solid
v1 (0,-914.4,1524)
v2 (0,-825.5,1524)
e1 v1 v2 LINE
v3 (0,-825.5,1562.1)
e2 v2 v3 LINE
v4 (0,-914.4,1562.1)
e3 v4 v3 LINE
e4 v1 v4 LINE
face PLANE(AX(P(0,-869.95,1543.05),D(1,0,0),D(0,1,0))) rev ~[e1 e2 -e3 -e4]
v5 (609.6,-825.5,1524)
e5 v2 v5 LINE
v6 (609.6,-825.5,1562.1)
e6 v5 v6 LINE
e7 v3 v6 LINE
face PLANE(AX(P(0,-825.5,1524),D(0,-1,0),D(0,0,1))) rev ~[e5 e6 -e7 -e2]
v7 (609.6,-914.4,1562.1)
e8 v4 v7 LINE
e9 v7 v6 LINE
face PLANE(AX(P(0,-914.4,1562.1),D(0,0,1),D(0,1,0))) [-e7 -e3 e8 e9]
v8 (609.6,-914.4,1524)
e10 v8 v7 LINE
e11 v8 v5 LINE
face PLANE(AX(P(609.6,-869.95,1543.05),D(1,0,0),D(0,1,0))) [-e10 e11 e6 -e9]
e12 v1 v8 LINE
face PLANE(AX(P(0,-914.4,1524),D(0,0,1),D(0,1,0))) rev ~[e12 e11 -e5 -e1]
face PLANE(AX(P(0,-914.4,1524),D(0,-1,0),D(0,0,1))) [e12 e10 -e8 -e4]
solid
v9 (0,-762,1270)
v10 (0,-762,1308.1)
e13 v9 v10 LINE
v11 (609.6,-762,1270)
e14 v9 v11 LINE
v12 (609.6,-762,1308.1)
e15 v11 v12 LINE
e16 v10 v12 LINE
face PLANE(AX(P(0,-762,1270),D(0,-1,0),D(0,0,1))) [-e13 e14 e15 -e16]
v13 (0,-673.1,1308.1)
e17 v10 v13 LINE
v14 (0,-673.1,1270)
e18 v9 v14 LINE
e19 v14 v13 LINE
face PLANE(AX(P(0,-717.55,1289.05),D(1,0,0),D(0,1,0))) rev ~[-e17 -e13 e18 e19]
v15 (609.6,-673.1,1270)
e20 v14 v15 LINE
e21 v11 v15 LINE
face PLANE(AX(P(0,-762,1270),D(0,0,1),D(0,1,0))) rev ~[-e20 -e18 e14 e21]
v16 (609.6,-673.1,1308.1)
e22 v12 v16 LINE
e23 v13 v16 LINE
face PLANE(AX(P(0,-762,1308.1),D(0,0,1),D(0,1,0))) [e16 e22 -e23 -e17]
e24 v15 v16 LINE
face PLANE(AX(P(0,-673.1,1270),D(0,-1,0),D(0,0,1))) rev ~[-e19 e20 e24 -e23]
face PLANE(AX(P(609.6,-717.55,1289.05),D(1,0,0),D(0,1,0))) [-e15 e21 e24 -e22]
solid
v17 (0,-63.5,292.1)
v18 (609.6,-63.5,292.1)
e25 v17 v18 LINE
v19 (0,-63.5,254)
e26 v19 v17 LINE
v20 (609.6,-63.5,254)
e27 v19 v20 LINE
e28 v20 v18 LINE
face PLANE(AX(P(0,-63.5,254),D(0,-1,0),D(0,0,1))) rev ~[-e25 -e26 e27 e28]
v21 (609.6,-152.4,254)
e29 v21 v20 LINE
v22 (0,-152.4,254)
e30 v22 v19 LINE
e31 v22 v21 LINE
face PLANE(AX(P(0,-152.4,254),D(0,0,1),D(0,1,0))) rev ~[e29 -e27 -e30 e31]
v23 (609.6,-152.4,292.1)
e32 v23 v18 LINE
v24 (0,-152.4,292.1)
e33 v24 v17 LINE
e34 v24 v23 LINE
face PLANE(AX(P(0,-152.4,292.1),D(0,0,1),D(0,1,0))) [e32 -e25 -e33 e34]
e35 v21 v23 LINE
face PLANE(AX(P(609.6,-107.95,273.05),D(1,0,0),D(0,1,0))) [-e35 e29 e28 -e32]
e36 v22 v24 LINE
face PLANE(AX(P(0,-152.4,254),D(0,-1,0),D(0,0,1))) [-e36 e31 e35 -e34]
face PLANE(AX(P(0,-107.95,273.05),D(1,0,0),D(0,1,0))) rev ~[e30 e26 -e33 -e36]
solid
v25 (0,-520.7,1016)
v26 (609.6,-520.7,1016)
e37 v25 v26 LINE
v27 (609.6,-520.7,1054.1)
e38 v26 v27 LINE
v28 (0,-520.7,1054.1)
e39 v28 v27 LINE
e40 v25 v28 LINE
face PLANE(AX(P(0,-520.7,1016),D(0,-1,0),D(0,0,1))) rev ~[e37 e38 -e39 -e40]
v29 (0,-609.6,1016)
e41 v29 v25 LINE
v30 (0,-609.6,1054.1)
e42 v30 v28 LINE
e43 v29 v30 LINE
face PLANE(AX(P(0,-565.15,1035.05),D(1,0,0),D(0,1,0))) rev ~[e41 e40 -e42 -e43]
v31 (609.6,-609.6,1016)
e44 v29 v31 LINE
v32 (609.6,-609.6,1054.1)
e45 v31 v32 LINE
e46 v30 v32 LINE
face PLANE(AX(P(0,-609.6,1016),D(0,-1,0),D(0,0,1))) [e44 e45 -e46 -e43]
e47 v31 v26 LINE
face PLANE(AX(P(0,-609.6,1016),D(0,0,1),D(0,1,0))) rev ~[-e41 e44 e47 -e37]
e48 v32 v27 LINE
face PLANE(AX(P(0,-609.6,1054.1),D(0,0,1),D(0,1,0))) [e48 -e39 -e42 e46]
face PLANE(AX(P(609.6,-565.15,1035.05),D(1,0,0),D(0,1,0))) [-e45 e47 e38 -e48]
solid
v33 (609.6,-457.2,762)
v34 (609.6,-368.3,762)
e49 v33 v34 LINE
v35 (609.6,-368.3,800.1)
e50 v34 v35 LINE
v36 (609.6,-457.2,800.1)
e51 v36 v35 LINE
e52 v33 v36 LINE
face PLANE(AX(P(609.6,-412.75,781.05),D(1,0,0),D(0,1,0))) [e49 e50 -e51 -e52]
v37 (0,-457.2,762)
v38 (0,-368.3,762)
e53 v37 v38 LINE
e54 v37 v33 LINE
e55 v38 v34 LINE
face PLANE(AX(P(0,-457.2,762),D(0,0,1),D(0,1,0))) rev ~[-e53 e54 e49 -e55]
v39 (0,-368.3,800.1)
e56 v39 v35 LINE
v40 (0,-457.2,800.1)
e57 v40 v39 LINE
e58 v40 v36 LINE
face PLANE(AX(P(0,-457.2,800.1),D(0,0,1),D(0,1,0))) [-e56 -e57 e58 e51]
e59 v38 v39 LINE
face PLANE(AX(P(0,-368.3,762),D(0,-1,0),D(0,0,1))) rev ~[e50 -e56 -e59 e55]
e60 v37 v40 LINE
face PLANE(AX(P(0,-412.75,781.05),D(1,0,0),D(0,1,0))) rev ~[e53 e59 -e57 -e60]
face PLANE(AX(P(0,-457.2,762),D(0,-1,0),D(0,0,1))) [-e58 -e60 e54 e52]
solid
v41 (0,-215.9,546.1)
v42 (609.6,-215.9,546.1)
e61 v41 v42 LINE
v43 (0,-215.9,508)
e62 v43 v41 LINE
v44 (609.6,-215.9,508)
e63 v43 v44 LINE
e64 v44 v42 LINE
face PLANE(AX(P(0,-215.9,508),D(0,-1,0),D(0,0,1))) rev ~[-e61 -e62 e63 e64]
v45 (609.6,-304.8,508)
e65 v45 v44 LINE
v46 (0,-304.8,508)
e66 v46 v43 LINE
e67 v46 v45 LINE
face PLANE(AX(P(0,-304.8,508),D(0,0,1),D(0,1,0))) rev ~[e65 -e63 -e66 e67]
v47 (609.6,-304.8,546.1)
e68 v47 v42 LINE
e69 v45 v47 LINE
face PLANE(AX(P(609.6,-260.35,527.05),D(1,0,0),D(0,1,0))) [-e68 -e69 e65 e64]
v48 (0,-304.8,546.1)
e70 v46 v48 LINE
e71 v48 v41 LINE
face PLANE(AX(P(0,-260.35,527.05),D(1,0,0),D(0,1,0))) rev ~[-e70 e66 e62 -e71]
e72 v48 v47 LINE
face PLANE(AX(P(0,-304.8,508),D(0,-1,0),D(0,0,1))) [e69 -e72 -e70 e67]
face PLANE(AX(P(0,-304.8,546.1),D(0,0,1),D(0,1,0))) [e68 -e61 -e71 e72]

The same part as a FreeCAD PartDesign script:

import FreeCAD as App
import Part
import Sketcher

V = App.Vector
Q = App.Units.Quantity

doc = App.newDocument("Part")
body = doc.addObject("PartDesign::Body", "Body")
body.AllowCompound = True

# Sketch on YZ plane
sketch1 = body.newObject("Sketcher::SketchObject", "Sketch")
sketch1.AttachmentSupport = (doc.getObject("YZ_Plane"), [""])
sketch1.MapMode = "FlatFace"
sketch1.addGeometry([
    Part.LineSegment(V(-152, 292, 0), V(-152, 254, 0)),  # 0
    Part.LineSegment(V(-152, 254, 0), V(-64, 254, 0)),  # 1
    Part.LineSegment(V(-64, 254, 0), V(-64, 292, 0)),  # 2
    Part.LineSegment(V(-64, 292, 0), V(-152, 292, 0)),  # 3
    Part.LineSegment(V(-305, 546, 0), V(-305, 508, 0)),  # 4
    Part.LineSegment(V(-305, 508, 0), V(-216, 508, 0)),  # 5
    Part.LineSegment(V(-216, 508, 0), V(-216, 546, 0)),  # 6
    Part.LineSegment(V(-216, 546, 0), V(-305, 546, 0)),  # 7
    Part.LineSegment(V(-457, 800, 0), V(-457, 762, 0)),  # 8
    Part.LineSegment(V(-457, 762, 0), V(-368, 762, 0)),  # 9
    Part.LineSegment(V(-368, 762, 0), V(-368, 800, 0)),  # 10
    Part.LineSegment(V(-368, 800, 0), V(-457, 800, 0)),  # 11
    Part.LineSegment(V(-610, 1054, 0), V(-610, 1016, 0)),  # 12
    Part.LineSegment(V(-610, 1016, 0), V(-521, 1016, 0)),  # 13
    Part.LineSegment(V(-521, 1016, 0), V(-521, 1054, 0)),  # 14
    Part.LineSegment(V(-521, 1054, 0), V(-610, 1054, 0)),  # 15
    Part.LineSegment(V(-762, 1308, 0), V(-762, 1270, 0)),  # 16
    Part.LineSegment(V(-762, 1270, 0), V(-673, 1270, 0)),  # 17
    Part.LineSegment(V(-673, 1270, 0), V(-673, 1308, 0)),  # 18
    Part.LineSegment(V(-673, 1308, 0), V(-762, 1308, 0)),  # 19
    Part.LineSegment(V(-914, 1562, 0), V(-914, 1524, 0)),  # 20
    Part.LineSegment(V(-914, 1524, 0), V(-826, 1524, 0)),  # 21
    Part.LineSegment(V(-826, 1524, 0), V(-826, 1562, 0)),  # 22
    Part.LineSegment(V(-826, 1562, 0), V(-914, 1562, 0)),  # 23
], False)
sketch1.addConstraint([
    Sketcher.Constraint("Coincident", 0, 2, 1, 1),
    Sketcher.Constraint("Coincident", 1, 2, 2, 1),
    Sketcher.Constraint("Coincident", 2, 2, 3, 1),
    Sketcher.Constraint("Coincident", 3, 2, 0, 1),
    Sketcher.Constraint("Coincident", 4, 2, 5, 1),
    Sketcher.Constraint("Coincident", 5, 2, 6, 1),
    Sketcher.Constraint("Coincident", 6, 2, 7, 1),
    Sketcher.Constraint("Coincident", 7, 2, 4, 1),
    Sketcher.Constraint("Coincident", 8, 2, 9, 1),
    Sketcher.Constraint("Coincident", 9, 2, 10, 1),
    Sketcher.Constraint("Coincident", 10, 2, 11, 1),
    Sketcher.Constraint("Coincident", 11, 2, 8, 1),
    Sketcher.Constraint("Coincident", 12, 2, 13, 1),
    Sketcher.Constraint("Coincident", 13, 2, 14, 1),
    Sketcher.Constraint("Coincident", 14, 2, 15, 1),
    Sketcher.Constraint("Coincident", 15, 2, 12, 1),
    Sketcher.Constraint("Coincident", 16, 2, 17, 1),
    Sketcher.Constraint("Coincident", 17, 2, 18, 1),
    Sketcher.Constraint("Coincident", 18, 2, 19, 1),
    Sketcher.Constraint("Coincident", 19, 2, 16, 1),
    Sketcher.Constraint("Coincident", 20, 2, 21, 1),
    Sketcher.Constraint("Coincident", 21, 2, 22, 1),
    Sketcher.Constraint("Coincident", 22, 2, 23, 1),
    Sketcher.Constraint("Coincident", 23, 2, 20, 1),
    Sketcher.Constraint("Vertical", 0),
    Sketcher.Constraint("Horizontal", 1),
    Sketcher.Constraint("Vertical", 2),
    Sketcher.Constraint("Horizontal", 3),
    Sketcher.Constraint("Vertical", 4),
    Sketcher.Constraint("Horizontal", 5),
    Sketcher.Constraint("Vertical", 6),
    Sketcher.Constraint("Horizontal", 7),
    Sketcher.Constraint("Vertical", 8),
    Sketcher.Constraint("Horizontal", 9),
    Sketcher.Constraint("Vertical", 10),
    Sketcher.Constraint("Horizontal", 11),
    Sketcher.Constraint("Vertical", 12),
    Sketcher.Constraint("Horizontal", 13),
    Sketcher.Constraint("Vertical", 14),
    Sketcher.Constraint("Horizontal", 15),
    Sketcher.Constraint("Vertical", 16),
    Sketcher.Constraint("Horizontal", 17),
    Sketcher.Constraint("Vertical", 18),
    Sketcher.Constraint("Horizontal", 19),
    Sketcher.Constraint("Vertical", 20),
    Sketcher.Constraint("Horizontal", 21),
    Sketcher.Constraint("Vertical", 22),
    Sketcher.Constraint("Horizontal", 23),
    Sketcher.Constraint("Equal", 3, 5),
    Sketcher.Constraint("Equal", 7, 9),
    Sketcher.Constraint("Equal", 11, 13),
    Sketcher.Constraint("Equal", 15, 17),
    Sketcher.Constraint("Equal", 19, 21),
    Sketcher.Constraint("Equal", 2, 4),
    Sketcher.Constraint("Equal", 6, 8),
    Sketcher.Constraint("Equal", 10, 12),
    Sketcher.Constraint("Equal", 14, 16),
    Sketcher.Constraint("Equal", 18, 20),
    Sketcher.Constraint("DistanceX", 1, 1, 1, 2, Q("3.5 in")),
    Sketcher.Constraint("DistanceY", 0, 2, 0, 1, Q("1.5 in")),
    Sketcher.Constraint("DistanceX", 0, 2, -1, 1, Q("6 in")),
    Sketcher.Constraint("DistanceY", -1, 1, 0, 2, Q("10 in")),
    Sketcher.Constraint("DistanceX", 4, 2, -1, 1, Q("12 in")),
    Sketcher.Constraint("DistanceY", -1, 1, 4, 2, Q("20 in")),
    Sketcher.Constraint("DistanceX", 8, 2, -1, 1, Q("18 in")),
    Sketcher.Constraint("DistanceY", -1, 1, 8, 2, Q("30 in")),
    Sketcher.Constraint("DistanceX", 12, 2, -1, 1, Q("24 in")),
    Sketcher.Constraint("DistanceY", -1, 1, 12, 2, Q("40 in")),
    Sketcher.Constraint("DistanceX", 16, 2, -1, 1, Q("30 in")),
    Sketcher.Constraint("DistanceY", -1, 1, 16, 2, Q("50 in")),
    Sketcher.Constraint("DistanceX", 20, 2, -1, 1, Q("36 in")),
    Sketcher.Constraint("DistanceY", -1, 1, 20, 2, Q("60 in")),
])
pad1 = body.newObject("PartDesign::Pad", "Pad")
pad1.Profile = sketch1
pad1.Length = Q("24 in")

doc.recompute()
